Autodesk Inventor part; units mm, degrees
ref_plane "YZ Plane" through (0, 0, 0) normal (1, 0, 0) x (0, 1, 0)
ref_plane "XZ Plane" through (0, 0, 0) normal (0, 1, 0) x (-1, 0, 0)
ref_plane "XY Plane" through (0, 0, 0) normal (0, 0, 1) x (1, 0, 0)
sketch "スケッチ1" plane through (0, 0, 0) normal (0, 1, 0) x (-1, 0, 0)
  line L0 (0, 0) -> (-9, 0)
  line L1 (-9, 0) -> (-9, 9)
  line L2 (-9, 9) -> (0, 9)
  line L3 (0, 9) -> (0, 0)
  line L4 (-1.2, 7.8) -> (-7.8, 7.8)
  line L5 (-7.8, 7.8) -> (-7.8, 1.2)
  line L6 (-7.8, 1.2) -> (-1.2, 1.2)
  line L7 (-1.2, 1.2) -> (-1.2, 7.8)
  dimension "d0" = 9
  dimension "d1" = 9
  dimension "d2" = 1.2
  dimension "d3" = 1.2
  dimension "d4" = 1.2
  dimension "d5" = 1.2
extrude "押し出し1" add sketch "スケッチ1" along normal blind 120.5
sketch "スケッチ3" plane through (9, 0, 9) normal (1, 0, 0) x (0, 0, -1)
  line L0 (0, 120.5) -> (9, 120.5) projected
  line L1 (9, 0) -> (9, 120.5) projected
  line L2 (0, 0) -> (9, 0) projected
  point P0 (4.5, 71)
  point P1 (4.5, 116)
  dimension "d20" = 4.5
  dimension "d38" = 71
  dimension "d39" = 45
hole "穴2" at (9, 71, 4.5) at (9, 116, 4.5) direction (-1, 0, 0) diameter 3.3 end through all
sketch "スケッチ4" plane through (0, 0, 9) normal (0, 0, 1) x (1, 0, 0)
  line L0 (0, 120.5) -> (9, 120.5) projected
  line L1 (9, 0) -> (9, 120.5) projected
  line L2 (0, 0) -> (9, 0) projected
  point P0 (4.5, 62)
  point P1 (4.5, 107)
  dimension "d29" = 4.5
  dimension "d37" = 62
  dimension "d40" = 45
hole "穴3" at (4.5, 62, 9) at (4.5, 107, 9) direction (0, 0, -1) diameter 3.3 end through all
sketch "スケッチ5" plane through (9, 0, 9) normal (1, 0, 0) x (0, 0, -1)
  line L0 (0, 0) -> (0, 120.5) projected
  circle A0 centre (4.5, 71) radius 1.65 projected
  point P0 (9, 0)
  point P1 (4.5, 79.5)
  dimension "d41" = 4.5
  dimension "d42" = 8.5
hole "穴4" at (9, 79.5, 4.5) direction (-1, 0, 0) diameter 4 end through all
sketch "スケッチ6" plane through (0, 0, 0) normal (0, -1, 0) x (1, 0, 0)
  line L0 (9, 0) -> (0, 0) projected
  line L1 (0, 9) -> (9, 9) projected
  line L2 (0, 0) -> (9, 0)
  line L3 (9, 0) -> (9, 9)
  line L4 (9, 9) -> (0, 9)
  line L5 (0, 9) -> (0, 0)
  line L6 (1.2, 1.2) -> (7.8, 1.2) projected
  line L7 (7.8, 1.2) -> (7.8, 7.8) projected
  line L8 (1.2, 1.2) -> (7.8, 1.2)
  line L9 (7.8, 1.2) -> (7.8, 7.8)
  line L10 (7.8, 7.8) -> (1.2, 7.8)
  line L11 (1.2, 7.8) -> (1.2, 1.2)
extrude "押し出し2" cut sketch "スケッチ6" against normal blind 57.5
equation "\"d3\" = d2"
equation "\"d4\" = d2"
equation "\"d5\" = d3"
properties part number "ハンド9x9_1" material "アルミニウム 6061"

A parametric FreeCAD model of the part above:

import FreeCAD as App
import Part
import Sketcher


def add_polygon(sketch, points):
    """Adds a closed chain of lines whose ends are joined by coincident constraints."""
    first, n = sketch.GeometryCount, len(points)
    for a, b in zip(points, points[1:] + points[:1]):
        sketch.addGeometry(Part.LineSegment(App.Vector(*a, 0), App.Vector(*b, 0)), False)
    for i in range(n):
        sketch.addConstraint(Sketcher.Constraint("Coincident", first + i, 2, first + (i + 1) % n, 1))

doc = App.newDocument("Part")
body = doc.addObject("PartDesign::Body", "Body")

# Sketch on XZ plane
sketch1 = doc.addObject("Sketcher::SketchObject", "Sketch")
body.addObject(sketch1)
sketch1.AttachmentSupport = (doc.XZ_Plane, [""])
sketch1.MapMode = "FlatFace"
add_polygon(sketch1, [(9, 0), (0, 0), (0, 9), (9, 9)])  # lines 0-3
add_polygon(sketch1, [(8, 8), (1, 8), (1, 1), (8, 1)])  # lines 4-7
sketch1.addConstraint([
    Sketcher.Constraint("Horizontal", 0),
    Sketcher.Constraint("Vertical", 1),
    Sketcher.Constraint("Horizontal", 2),
    Sketcher.Constraint("Vertical", 3),
    Sketcher.Constraint("Horizontal", 4),
    Sketcher.Constraint("Vertical", 5),
    Sketcher.Constraint("Horizontal", 6),
    Sketcher.Constraint("Vertical", 7),
    Sketcher.Constraint("Coincident", 0, 2, -1, 1),
    Sketcher.Constraint("Equal", 2, 1),
    Sketcher.Constraint("Equal", 6, 5),
    Sketcher.Constraint("DistanceX", 0, 2, 0, 1, 9.0),
    Sketcher.Constraint("DistanceX", -1, 1, 4, 2, 1.2),
    Sketcher.Constraint("DistanceY", -1, 1, 5, 2, 1.2),
    Sketcher.Constraint("DistanceY", 4, 2, 1, 2, 1.2),
])
pad1 = doc.addObject("PartDesign::Pad", "Pad")
body.addObject(pad1)
pad1.Profile = sketch1
pad1.Length = 120.5
pad1.Reversed = True

# Sketch on YZ plane
sketch2 = doc.addObject("Sketcher::SketchObject", "Sketch001")
body.addObject(sketch2)
sketch2.AttachmentSupport = (doc.YZ_Plane, [""])
sketch2.MapMode = "FlatFace"
sketch2.AttachmentOffset = App.Placement(App.Vector(0, 0, 9), App.Rotation())
sketch2.addGeometry([
    Part.Circle(App.Vector(71, 4.5, 0), App.Vector(0, 0, 1), 1.6),
    Part.Circle(App.Vector(116, 4.5, 0), App.Vector(0, 0, 1), 1.6),
], False)
sketch2.addConstraint([
    Sketcher.Constraint("Equal", 0, 1),
    Sketcher.Constraint("Horizontal", 0, 3, 1, 3),
    Sketcher.Constraint("Diameter", 0, 3.3),
    Sketcher.Constraint("DistanceX", -1, 1, 0, 3, 71.0),
    Sketcher.Constraint("DistanceX", -1, 1, 1, 3, 116.0),
    Sketcher.Constraint("DistanceY", -1, 1, 0, 3, 4.5),
])
doc.recompute()
hole = doc.addObject("PartDesign::Hole", "Hole")
body.addObject(hole)
hole.Profile = sketch2
hole.ThreadType = "None"
hole.Diameter = 3.3
hole.DepthType = "ThroughAll"

# Sketch on XY plane
sketch3 = doc.addObject("Sketcher::SketchObject", "Sketch002")
body.addObject(sketch3)
sketch3.AttachmentSupport = (doc.XY_Plane, [""])
sketch3.MapMode = "FlatFace"
sketch3.AttachmentOffset = App.Placement(App.Vector(0, 0, 9), App.Rotation())
sketch3.addGeometry([
    Part.Circle(App.Vector(4.5, 62, 0), App.Vector(0, 0, 1), 1.6),
    Part.Circle(App.Vector(4.5, 107, 0), App.Vector(0, 0, 1), 1.6),
], False)
sketch3.addConstraint([
    Sketcher.Constraint("Equal", 0, 1),
    Sketcher.Constraint("Vertical", 0, 3, 1, 3),
    Sketcher.Constraint("Diameter", 0, 3.3),
    Sketcher.Constraint("DistanceY", -1, 1, 0, 3, 62.0),
    Sketcher.Constraint("DistanceY", -1, 1, 1, 3, 107.0),
    Sketcher.Constraint("DistanceX", -1, 1, 0, 3, 4.5),
])
doc.recompute()
hole2 = doc.addObject("PartDesign::Hole", "Hole001")
body.addObject(hole2)
hole2.Profile = sketch3
hole2.ThreadType = "None"
hole2.Diameter = 3.3
hole2.DepthType = "ThroughAll"

# Sketch on YZ plane
sketch4 = doc.addObject("Sketcher::SketchObject", "Sketch003")
body.addObject(sketch4)
sketch4.AttachmentSupport = (doc.YZ_Plane, [""])
sketch4.MapMode = "FlatFace"
sketch4.AttachmentOffset = App.Placement(App.Vector(0, 0, 9), App.Rotation())
sketch4.addGeometry(Part.Circle(App.Vector(79.5, 4.5, 0), App.Vector(0, 0, 1), 2), False)
sketch4.addConstraint([
    Sketcher.Constraint("Diameter", 0, 4.0),
    Sketcher.Constraint("DistanceX", -1, 1, 0, 3, 79.5),
    Sketcher.Constraint("DistanceY", -1, 1, 0, 3, 4.5),
])
doc.recompute()
hole3 = doc.addObject("PartDesign::Hole", "Hole002")
body.addObject(hole3)
hole3.Profile = sketch4
hole3.ThreadType = "None"
hole3.Diameter = 4
hole3.DepthType = "ThroughAll"

# Sketch on XZ plane
sketch5 = doc.addObject("Sketcher::SketchObject", "Sketch004")
body.addObject(sketch5)
sketch5.AttachmentSupport = (doc.XZ_Plane, [""])
sketch5.MapMode = "FlatFace"
add_polygon(sketch5, [(0, 0), (9, 0), (9, 9), (0, 9)])  # lines 0-3
add_polygon(sketch5, [(8, 1), (1, 1), (1, 8), (8, 8)])  # lines 4-7
sketch5.addConstraint([
    Sketcher.Constraint("Horizontal", 0),
    Sketcher.Constraint("Vertical", 1),
    Sketcher.Constraint("Horizontal", 2),
    Sketcher.Constraint("Vertical", 3),
    Sketcher.Constraint("Horizontal", 4),
    Sketcher.Constraint("Vertical", 5),
    Sketcher.Constraint("Horizontal", 6),
    Sketcher.Constraint("Vertical", 7),
    Sketcher.Constraint("Coincident", 3, 2, -1, 1),
    Sketcher.Constraint("Equal", 2, 1),
    Sketcher.Constraint("Equal", 6, 5),
    Sketcher.Constraint("DistanceX", 0, 1, 0, 2, 9.0),
    Sketcher.Constraint("DistanceX", 4, 2, 4, 1, 6.6),
    Sketcher.Constraint("DistanceX", -1, 1, 4, 2, 1.2),
    Sketcher.Constraint("DistanceY", -1, 1, 4, 2, 1.2),
])
pocket1 = doc.addObject("PartDesign::Pocket", "Pocket")
body.addObject(pocket1)
pocket1.Profile = sketch5
pocket1.Length = 57.5

doc.recompute()
